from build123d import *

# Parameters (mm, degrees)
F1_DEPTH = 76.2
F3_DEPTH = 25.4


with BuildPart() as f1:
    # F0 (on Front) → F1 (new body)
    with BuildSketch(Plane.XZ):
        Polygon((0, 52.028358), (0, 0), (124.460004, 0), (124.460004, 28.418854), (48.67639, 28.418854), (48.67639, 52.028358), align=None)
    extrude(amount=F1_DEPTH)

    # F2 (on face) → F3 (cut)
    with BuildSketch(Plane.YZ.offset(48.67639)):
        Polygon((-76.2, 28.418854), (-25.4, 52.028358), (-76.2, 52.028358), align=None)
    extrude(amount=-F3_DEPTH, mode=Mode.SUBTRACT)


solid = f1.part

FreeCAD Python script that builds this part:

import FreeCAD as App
import Part
import Sketcher
Q = App.Units.Quantity


def add_polygon(sketch, points):
    """Adds a closed chain of lines whose ends are joined by coincident constraints."""
    first, n = sketch.GeometryCount, len(points)
    for a, b in zip(points, points[1:] + points[:1]):
        sketch.addGeometry(Part.LineSegment(App.Vector(*a, 0), App.Vector(*b, 0)), False)
    for i in range(n):
        sketch.addConstraint(Sketcher.Constraint("Coincident", first + i, 2, first + (i + 1) % n, 1))

doc = App.newDocument("Part")
body = doc.addObject("PartDesign::Body", "Body")

sketch1 = doc.addObject("Sketcher::SketchObject", "Sketch")
body.addObject(sketch1)
sketch1.AttachmentSupport = (doc.XZ_Plane, [""])
sketch1.MapMode = "FlatFace"
add_polygon(sketch1, [(0, 52), (0, 0), (124, 0), (124, 28), (49, 28), (49, 52)])
sketch1.addConstraint([
    Sketcher.Constraint("Vertical", 0),
    Sketcher.Constraint("Horizontal", 1),
    Sketcher.Constraint("Vertical", 2),
    Sketcher.Constraint("Horizontal", 3),
    Sketcher.Constraint("Vertical", 4),
    Sketcher.Constraint("Horizontal", 5),
    Sketcher.Constraint("Coincident", 0, 2, -1, 1),
    Sketcher.Constraint("DistanceX", 1, 1, 1, 2, Q("4.9000002 in")),
    Sketcher.Constraint("DistanceX", 5, 2, 5, 1, Q("48.67639 mm")),
    Sketcher.Constraint("DistanceY", 0, 2, 0, 1, Q("52.028358 mm")),
    Sketcher.Constraint("DistanceY", 2, 1, 2, 2, Q("28.418854 mm")),
])
pad1 = doc.addObject("PartDesign::Pad", "Pad")
body.addObject(pad1)
pad1.Profile = sketch1
pad1.Length = Q("3 in")

sketch2 = doc.addObject("Sketcher::SketchObject", "Sketch001")
body.addObject(sketch2)
sketch2.AttachmentSupport = (doc.YZ_Plane, [""])
sketch2.MapMode = "FlatFace"
sketch2.AttachmentOffset = App.Placement(App.Vector(0, 0, 48.67639), App.Rotation())
add_polygon(sketch2, [(-76, 28), (-25, 52), (-76, 52)])
sketch2.addConstraint([
    Sketcher.Constraint("Horizontal", 1),
    Sketcher.Constraint("Vertical", 2),
    Sketcher.Constraint("DistanceX", 1, 2, 1, 1, Q("2 in")),
    Sketcher.Constraint("DistanceX", 0, 2, -1, 1, Q("1 in")),
    Sketcher.Constraint("Distance", 0, Q("56.018289 mm")),
    Sketcher.Constraint("DistanceY", -1, 1, 0, 2, Q("52.028358 mm")),
])
pocket1 = doc.addObject("PartDesign::Pocket", "Pocket")
body.addObject(pocket1)
pocket1.Profile = sketch2
pocket1.Length = Q("1 in")

doc.recompute()
